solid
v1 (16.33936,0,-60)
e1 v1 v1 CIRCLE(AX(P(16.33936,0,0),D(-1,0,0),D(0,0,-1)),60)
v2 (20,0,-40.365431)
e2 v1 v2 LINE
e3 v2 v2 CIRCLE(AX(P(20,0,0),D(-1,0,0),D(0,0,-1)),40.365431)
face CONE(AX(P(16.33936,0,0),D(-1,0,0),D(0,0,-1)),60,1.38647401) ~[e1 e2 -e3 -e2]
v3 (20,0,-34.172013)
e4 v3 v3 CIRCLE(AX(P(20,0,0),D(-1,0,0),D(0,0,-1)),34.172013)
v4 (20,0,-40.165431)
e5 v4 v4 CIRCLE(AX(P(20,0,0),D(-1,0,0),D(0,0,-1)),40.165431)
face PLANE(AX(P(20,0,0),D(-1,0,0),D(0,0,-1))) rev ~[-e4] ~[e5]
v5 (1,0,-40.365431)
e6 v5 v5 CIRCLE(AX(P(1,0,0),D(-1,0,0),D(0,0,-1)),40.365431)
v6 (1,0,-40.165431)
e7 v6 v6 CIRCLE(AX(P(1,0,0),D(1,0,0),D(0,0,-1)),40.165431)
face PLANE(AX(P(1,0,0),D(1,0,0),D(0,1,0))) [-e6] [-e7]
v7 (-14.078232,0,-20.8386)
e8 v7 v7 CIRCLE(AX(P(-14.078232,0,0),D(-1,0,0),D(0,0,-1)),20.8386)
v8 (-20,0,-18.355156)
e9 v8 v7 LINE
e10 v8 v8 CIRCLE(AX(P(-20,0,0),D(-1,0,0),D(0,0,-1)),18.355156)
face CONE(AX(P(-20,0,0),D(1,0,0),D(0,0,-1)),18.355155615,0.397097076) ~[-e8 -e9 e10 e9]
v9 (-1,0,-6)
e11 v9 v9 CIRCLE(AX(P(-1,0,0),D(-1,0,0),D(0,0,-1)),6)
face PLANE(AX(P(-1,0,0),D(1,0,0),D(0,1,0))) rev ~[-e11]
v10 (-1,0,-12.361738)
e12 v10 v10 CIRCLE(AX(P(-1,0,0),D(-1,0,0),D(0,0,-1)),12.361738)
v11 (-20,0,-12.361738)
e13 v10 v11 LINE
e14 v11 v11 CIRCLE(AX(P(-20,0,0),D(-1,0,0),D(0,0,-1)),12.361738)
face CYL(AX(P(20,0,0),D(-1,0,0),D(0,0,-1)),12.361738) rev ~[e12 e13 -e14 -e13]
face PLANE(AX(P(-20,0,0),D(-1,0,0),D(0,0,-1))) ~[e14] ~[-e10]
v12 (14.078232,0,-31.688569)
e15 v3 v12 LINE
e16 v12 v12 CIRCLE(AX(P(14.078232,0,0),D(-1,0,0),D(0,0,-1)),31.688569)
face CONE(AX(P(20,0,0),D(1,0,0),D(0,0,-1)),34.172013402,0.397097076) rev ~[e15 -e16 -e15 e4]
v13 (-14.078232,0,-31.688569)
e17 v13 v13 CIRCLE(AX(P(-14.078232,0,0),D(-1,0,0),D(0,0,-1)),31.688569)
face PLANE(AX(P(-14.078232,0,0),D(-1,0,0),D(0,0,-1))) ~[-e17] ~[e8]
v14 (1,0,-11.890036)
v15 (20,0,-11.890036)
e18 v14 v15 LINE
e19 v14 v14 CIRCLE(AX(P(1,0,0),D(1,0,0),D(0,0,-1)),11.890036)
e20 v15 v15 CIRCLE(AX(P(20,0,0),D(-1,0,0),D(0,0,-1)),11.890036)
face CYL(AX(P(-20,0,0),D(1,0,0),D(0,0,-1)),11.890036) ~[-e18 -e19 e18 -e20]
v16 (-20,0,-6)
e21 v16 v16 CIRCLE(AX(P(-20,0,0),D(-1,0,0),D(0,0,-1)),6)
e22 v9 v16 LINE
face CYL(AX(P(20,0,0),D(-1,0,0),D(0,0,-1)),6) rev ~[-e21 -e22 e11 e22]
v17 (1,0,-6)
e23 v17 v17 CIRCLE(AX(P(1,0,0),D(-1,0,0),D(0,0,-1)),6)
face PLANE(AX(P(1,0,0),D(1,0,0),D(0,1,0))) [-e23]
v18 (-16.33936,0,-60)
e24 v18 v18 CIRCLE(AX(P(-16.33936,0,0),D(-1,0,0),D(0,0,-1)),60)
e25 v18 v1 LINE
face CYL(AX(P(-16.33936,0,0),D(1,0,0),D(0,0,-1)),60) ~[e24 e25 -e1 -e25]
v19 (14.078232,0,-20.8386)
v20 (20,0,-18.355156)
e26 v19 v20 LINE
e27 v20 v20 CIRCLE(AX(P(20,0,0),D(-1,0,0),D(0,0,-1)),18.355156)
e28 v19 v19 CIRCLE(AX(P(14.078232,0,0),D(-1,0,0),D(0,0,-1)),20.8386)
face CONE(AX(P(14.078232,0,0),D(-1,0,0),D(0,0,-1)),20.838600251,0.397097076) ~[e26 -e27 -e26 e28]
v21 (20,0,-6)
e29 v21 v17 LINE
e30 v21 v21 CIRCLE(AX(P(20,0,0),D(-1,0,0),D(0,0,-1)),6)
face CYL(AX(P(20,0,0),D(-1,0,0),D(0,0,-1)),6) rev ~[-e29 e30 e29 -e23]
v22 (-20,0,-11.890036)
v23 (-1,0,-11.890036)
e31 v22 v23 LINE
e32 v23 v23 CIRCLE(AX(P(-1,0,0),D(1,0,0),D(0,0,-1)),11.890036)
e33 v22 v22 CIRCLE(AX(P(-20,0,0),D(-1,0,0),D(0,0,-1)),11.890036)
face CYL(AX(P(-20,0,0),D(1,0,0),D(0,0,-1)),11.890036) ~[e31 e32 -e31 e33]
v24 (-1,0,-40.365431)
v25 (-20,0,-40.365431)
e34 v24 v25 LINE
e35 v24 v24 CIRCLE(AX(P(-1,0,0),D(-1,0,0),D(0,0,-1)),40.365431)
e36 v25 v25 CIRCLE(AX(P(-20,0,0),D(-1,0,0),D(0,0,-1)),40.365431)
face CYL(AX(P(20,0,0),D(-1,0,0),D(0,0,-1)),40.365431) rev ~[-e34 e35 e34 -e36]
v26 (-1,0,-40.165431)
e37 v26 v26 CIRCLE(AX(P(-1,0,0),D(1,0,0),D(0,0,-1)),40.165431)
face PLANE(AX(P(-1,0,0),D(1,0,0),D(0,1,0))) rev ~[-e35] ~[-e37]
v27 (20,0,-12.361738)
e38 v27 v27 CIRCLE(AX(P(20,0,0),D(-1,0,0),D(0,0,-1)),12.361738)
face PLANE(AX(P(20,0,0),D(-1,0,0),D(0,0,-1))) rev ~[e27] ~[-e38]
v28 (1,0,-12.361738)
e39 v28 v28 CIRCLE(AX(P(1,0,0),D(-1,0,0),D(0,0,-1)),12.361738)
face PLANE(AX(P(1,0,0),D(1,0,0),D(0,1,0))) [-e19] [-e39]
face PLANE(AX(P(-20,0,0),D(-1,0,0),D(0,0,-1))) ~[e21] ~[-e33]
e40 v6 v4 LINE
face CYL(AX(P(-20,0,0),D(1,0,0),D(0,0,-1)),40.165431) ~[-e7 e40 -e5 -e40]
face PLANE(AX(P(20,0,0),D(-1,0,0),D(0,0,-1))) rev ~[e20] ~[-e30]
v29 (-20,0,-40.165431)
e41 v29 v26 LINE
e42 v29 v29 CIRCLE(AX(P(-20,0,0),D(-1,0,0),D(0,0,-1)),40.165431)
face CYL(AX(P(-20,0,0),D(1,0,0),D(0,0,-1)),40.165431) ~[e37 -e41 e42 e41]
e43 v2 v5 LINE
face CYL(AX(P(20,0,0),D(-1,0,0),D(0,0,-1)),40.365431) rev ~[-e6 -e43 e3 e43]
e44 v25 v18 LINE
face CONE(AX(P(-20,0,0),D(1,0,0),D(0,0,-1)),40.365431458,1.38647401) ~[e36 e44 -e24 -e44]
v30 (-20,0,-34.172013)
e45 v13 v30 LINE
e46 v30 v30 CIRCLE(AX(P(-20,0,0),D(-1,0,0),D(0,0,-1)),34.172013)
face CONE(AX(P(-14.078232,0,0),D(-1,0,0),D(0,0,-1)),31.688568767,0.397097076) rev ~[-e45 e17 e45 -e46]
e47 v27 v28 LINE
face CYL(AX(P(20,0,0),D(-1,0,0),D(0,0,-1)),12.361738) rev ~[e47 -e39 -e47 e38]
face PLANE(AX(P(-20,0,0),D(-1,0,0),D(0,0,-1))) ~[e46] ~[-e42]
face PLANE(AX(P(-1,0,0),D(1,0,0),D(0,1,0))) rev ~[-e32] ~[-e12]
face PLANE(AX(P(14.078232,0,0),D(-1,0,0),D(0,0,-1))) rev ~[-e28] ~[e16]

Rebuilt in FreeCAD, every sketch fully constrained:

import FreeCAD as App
import Part
import Sketcher
from FreeCAD import Vector

doc = App.newDocument("Part")
body = doc.addObject("PartDesign::Body", "Body")

# Sketch on XZ plane
sketch1 = doc.addObject("Sketcher::SketchObject", "Sketch")
body.addObject(sketch1)
sketch1.AttachmentSupport = (doc.XZ_Plane, [""])
sketch1.MapMode = "FlatFace"
sketch1.addGeometry(Part.LineSegment(Vector(-20, -11.890036, 0), Vector(20, -11.890036, 0)), False)
sketch1.addGeometry(Part.LineSegment(Vector(20, -11.890036, 0), Vector(20, -6, 0)), False)
sketch1.addGeometry(Part.LineSegment(Vector(20, -6, 0), Vector(-20, -6, 0)), False)
sketch1.addGeometry(Part.LineSegment(Vector(-20, -6, 0), Vector(-20, -11.890036, 0)), False)
sketch1.addConstraint(Sketcher.Constraint("Coincident", 0, 2, 1, 1))
sketch1.addConstraint(Sketcher.Constraint("Coincident", 1, 2, 2, 1))
sketch1.addConstraint(Sketcher.Constraint("Coincident", 2, 2, 3, 1))
sketch1.addConstraint(Sketcher.Constraint("Coincident", 3, 2, 0, 1))
sketch1.addConstraint(Sketcher.Constraint("Horizontal", 0))
sketch1.addConstraint(Sketcher.Constraint("Vertical", 1))
sketch1.addConstraint(Sketcher.Constraint("Horizontal", 2))
sketch1.addConstraint(Sketcher.Constraint("Vertical", 3))
sketch1.addConstraint(Sketcher.Constraint("DistanceX", 0, 1, 0, 2, 40.0))
sketch1.addConstraint(Sketcher.Constraint("DistanceX", -1, 1, 0, 2, 20.0))
sketch1.addConstraint(Sketcher.Constraint("DistanceY", 1, 2, -1, 1, 6.0))
sketch1.addConstraint(Sketcher.Constraint("DistanceY", 1, 1, 1, 2, 5.890036))
revolution = doc.addObject("PartDesign::Revolution", "Revolution")
body.addObject(revolution)
revolution.Profile = sketch1
revolution.ReferenceAxis = (sketch1, ["H_Axis"])
revolution.Angle = 360
body2 = doc.addObject("PartDesign::Body", "Body001")

# Sketch on XZ plane
sketch2 = doc.addObject("Sketcher::SketchObject", "Sketch001")
body2.addObject(sketch2)
sketch2.AttachmentSupport = (doc.getObject("XZ_Plane001"), [""])
sketch2.MapMode = "FlatFace"
sketch2.addGeometry(Part.LineSegment(Vector(-16.33936, -60, 0), Vector(16.33936, -60, 0)), False)
sketch2.addGeometry(Part.LineSegment(Vector(16.33936, -60, 0), Vector(20, -40.365431, 0)), False)
sketch2.addGeometry(Part.LineSegment(Vector(20, -40.365431, 0), Vector(-20, -40.365431, 0)), False)
sketch2.addGeometry(Part.LineSegment(Vector(-20, -40.365431, 0), Vector(-16.33936, -60, 0)), False)
sketch2.addConstraint(Sketcher.Constraint("Coincident", 0, 2, 1, 1))
sketch2.addConstraint(Sketcher.Constraint("Coincident", 1, 2, 2, 1))
sketch2.addConstraint(Sketcher.Constraint("Coincident", 2, 2, 3, 1))
sketch2.addConstraint(Sketcher.Constraint("Coincident", 3, 2, 0, 1))
sketch2.addConstraint(Sketcher.Constraint("Horizontal", 0))
sketch2.addConstraint(Sketcher.Constraint("Horizontal", 2))
sketch2.addConstraint(Sketcher.Constraint("Equal", 1, 3))
sketch2.addConstraint(Sketcher.Constraint("DistanceX", 2, 2, 2, 1, 40.0))
sketch2.addConstraint(Sketcher.Constraint("DistanceY", 0, 2, -1, 1, 60.0))
sketch2.addConstraint(Sketcher.Constraint("DistanceX", -1, 1, 1, 2, 20.0))
sketch2.addConstraint(Sketcher.Constraint("DistanceX", 0, 1, 0, 2, 32.67872))
sketch2.addConstraint(Sketcher.Constraint("DistanceY", 1, 2, -1, 1, 40.365431))
revolution2 = doc.addObject("PartDesign::Revolution", "Revolution001")
body2.addObject(revolution2)
revolution2.Profile = sketch2
revolution2.ReferenceAxis = (sketch2, ["H_Axis"])
revolution2.Angle = 360
body3 = doc.addObject("PartDesign::Body", "Body002")

# Sketch on XZ plane
sketch3 = doc.addObject("Sketcher::SketchObject", "Sketch002")
body3.addObject(sketch3)
sketch3.AttachmentSupport = (doc.getObject("XZ_Plane002"), [""])
sketch3.MapMode = "FlatFace"
sketch3.addGeometry(Part.LineSegment(Vector(20, -40.165431, 0), Vector(20, -34.172013, 0)), False)
sketch3.addGeometry(Part.LineSegment(Vector(20, -34.172013, 0), Vector(14.078232, -31.688569, 0)), False)
sketch3.addGeometry(Part.LineSegment(Vector(14.078232, -31.688569, 0), Vector(14.078232, -20.8386, 0)), False)
sketch3.addGeometry(Part.LineSegment(Vector(14.078232, -20.8386, 0), Vector(20, -18.355156, 0)), False)
sketch3.addGeometry(Part.LineSegment(Vector(20, -18.355156, 0), Vector(20, -12.361738, 0)), False)
sketch3.addGeometry(Part.LineSegment(Vector(20, -12.361738, 0), Vector(-20, -12.361738, 0)), False)
sketch3.addGeometry(Part.LineSegment(Vector(-20, -12.361738, 0), Vector(-20, -18.355156, 0)), False)
sketch3.addGeometry(Part.LineSegment(Vector(-20, -18.355156, 0), Vector(-14.078232, -20.8386, 0)), False)
sketch3.addGeometry(Part.LineSegment(Vector(-14.078232, -20.8386, 0), Vector(-14.078232, -31.688569, 0)), False)
sketch3.addGeometry(Part.LineSegment(Vector(-14.078232, -31.688569, 0), Vector(-20, -34.172013, 0)), False)
sketch3.addGeometry(Part.LineSegment(Vector(-20, -34.172013, 0), Vector(-20, -40.165431, 0)), False)
sketch3.addGeometry(Part.LineSegment(Vector(-20, -40.165431, 0), Vector(20, -40.165431, 0)), False)
sketch3.addConstraint(Sketcher.Constraint("Coincident", 0, 2, 1, 1))
sketch3.addConstraint(Sketcher.Constraint("Coincident", 1, 2, 2, 1))
sketch3.addConstraint(Sketcher.Constraint("Coincident", 2, 2, 3, 1))
sketch3.addConstraint(Sketcher.Constraint("Coincident", 3, 2, 4, 1))
sketch3.addConstraint(Sketcher.Constraint("Coincident", 4, 2, 5, 1))
sketch3.addConstraint(Sketcher.Constraint("Coincident", 5, 2, 6, 1))
sketch3.addConstraint(Sketcher.Constraint("Coincident", 6, 2, 7, 1))
sketch3.addConstraint(Sketcher.Constraint("Coincident", 7, 2, 8, 1))
sketch3.addConstraint(Sketcher.Constraint("Coincident", 8, 2, 9, 1))
sketch3.addConstraint(Sketcher.Constraint("Coincident", 9, 2, 10, 1))
sketch3.addConstraint(Sketcher.Constraint("Coincident", 10, 2, 11, 1))
sketch3.addConstraint(Sketcher.Constraint("Coincident", 11, 2, 0, 1))
sketch3.addConstraint(Sketcher.Constraint("Vertical", 0))
sketch3.addConstraint(Sketcher.Constraint("Vertical", 2))
sketch3.addConstraint(Sketcher.Constraint("Vertical", 4))
sketch3.addConstraint(Sketcher.Constraint("Horizontal", 5))
sketch3.addConstraint(Sketcher.Constraint("Vertical", 6))
sketch3.addConstraint(Sketcher.Constraint("Vertical", 8))
sketch3.addConstraint(Sketcher.Constraint("Vertical", 10))
sketch3.addConstraint(Sketcher.Constraint("Horizontal", 11))
sketch3.addConstraint(Sketcher.Constraint("Symmetric", 3, 2, 6, 2, -2))
sketch3.addConstraint(Sketcher.Constraint("Symmetric", 2, 2, 7, 2, -2))
sketch3.addConstraint(Sketcher.Constraint("Symmetric", 0, 2, 9, 2, -2))
sketch3.addConstraint(Sketcher.Constraint("Parallel", 1, 7))
sketch3.addConstraint(Sketcher.Constraint("Parallel", 3, 9))
sketch3.addConstraint(Sketcher.Constraint("Vertical", 0, 2, 3, 2))
sketch3.addConstraint(Sketcher.Constraint("Equal", 0, 4))
sketch3.addConstraint(Sketcher.Constraint("DistanceX", 5, 2, 5, 1, 40.0))
sketch3.addConstraint(Sketcher.Constraint("DistanceY", 0, 1, 0, 2, 5.993418))
sketch3.addConstraint(Sketcher.Constraint("DistanceY", 2, 1, 2, 2, 10.849969))
sketch3.addConstraint(Sketcher.Constraint("DistanceY", 2, 2, -1, 1, 20.8386))
sketch3.addConstraint(Sketcher.Constraint("DistanceY", 10, 2, -1, 1, 40.165431))
sketch3.addConstraint(Sketcher.Constraint("Distance", 1, 6.421435))
revolution3 = doc.addObject("PartDesign::Revolution", "Revolution002")
body3.addObject(revolution3)
revolution3.Profile = sketch3
revolution3.ReferenceAxis = (sketch3, ["H_Axis"])
revolution3.Angle = 360
body.AllowCompound = True
doc.recompute()

boolean = doc.addObject("PartDesign::Boolean", "Boolean")
body.addObject(boolean)
boolean.Type = "Fuse"
boolean.addObjects([body2])
doc.recompute()

boolean2 = doc.addObject("PartDesign::Boolean", "Boolean001")
body.addObject(boolean2)
boolean2.Type = "Fuse"
boolean2.addObjects([body3])

# Sketch on YZ plane
sketch4 = doc.addObject("Sketcher::SketchObject", "Sketch003")
body.addObject(sketch4)
sketch4.AttachmentSupport = (doc.YZ_Plane, [""])
sketch4.MapMode = "FlatFace"
sketch4.addGeometry(Part.Circle(Vector(0, 0, 0), Vector(0, 0, 1), 47.093812), False)
sketch4.addConstraint(Sketcher.Constraint("Coincident", 0, 3, -1, 1))
sketch4.addConstraint(Sketcher.Constraint("Diameter", 0, 94.187624))
pad1 = doc.addObject("PartDesign::Pad", "Pad")
body.addObject(pad1)
pad1.Profile = sketch4
pad1.Length = 2
pad1.Midplane = True

doc.recompute()
